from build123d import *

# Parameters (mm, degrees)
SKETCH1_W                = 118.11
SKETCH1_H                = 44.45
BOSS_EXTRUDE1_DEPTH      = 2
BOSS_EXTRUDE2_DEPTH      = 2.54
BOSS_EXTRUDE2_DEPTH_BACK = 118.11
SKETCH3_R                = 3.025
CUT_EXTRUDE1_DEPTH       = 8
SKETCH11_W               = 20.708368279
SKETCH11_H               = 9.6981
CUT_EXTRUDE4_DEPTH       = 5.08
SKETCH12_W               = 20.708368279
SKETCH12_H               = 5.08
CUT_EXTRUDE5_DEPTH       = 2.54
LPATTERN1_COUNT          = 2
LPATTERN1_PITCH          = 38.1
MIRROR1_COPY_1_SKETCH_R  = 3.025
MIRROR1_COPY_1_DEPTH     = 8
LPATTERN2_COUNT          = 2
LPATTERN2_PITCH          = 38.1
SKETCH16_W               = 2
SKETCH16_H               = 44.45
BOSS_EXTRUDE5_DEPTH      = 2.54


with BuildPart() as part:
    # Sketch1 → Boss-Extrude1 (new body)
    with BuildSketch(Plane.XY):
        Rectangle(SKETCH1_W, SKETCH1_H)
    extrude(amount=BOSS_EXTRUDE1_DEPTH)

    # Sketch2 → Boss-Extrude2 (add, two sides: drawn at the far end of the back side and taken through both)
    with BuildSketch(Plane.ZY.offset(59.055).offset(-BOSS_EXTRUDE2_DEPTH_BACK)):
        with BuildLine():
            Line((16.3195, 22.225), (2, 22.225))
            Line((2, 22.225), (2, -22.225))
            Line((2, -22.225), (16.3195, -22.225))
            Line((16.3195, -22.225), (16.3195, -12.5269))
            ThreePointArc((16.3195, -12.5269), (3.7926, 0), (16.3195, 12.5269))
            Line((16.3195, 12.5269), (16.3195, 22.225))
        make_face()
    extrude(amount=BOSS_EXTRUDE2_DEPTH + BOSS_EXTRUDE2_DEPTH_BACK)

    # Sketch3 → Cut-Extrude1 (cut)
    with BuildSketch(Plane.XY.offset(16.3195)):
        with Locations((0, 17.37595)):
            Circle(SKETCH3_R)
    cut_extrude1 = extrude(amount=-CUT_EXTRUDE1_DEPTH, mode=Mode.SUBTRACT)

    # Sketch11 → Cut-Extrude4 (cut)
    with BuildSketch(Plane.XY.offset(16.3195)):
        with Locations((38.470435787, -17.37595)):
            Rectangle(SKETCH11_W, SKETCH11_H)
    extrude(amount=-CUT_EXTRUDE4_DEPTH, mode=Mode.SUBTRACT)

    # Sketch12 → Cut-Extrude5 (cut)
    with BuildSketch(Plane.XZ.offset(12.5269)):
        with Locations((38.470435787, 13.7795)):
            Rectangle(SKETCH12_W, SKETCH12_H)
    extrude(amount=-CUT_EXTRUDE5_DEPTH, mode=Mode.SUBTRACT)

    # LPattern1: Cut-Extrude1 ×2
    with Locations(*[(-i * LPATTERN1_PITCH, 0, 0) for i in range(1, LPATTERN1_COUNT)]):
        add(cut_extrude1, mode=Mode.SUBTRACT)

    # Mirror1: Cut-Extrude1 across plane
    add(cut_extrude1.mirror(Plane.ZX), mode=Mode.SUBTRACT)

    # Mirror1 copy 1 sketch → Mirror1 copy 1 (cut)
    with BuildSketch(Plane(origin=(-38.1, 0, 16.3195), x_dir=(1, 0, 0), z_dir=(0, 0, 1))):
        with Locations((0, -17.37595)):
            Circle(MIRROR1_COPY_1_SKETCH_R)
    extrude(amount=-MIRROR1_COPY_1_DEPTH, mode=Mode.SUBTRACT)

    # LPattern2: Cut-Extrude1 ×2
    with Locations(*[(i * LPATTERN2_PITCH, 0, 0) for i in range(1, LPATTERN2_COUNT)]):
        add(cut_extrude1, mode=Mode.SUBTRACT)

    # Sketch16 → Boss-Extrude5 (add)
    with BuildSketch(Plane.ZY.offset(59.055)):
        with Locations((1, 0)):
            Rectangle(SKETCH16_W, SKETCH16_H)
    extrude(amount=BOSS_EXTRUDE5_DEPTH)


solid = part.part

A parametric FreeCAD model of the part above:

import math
import FreeCAD as App
import Part
import Sketcher

V = App.Vector
Q = App.Units.Quantity

doc = App.newDocument("Part")
body = doc.addObject("PartDesign::Body", "Body")

sketch1 = body.newObject("Sketcher::SketchObject", "Sketch")
sketch1.AttachmentSupport = (doc.getObject("XY_Plane"), [""])
sketch1.MapMode = "FlatFace"
sketch1.addGeometry([
    Part.LineSegment(V(-59, 22, 0), V(-59, -22, 0)),
    Part.LineSegment(V(-59, -22, 0), V(59, -22, 0)),
    Part.LineSegment(V(59, -22, 0), V(59, 22, 0)),
    Part.LineSegment(V(59, 22, 0), V(-59, 22, 0)),
], False)
sketch1.addConstraint([
    Sketcher.Constraint("Coincident", 0, 2, 1, 1),
    Sketcher.Constraint("Coincident", 1, 2, 2, 1),
    Sketcher.Constraint("Coincident", 2, 2, 3, 1),
    Sketcher.Constraint("Coincident", 3, 2, 0, 1),
    Sketcher.Constraint("Vertical", 0),
    Sketcher.Constraint("Horizontal", 1),
    Sketcher.Constraint("Vertical", 2),
    Sketcher.Constraint("Horizontal", 3),
    Sketcher.Constraint("Symmetric", 0, 2, 2, 2, -1, 1),
    Sketcher.Constraint("DistanceX", 1, 1, 1, 2, Q("4.65 in")),
    Sketcher.Constraint("DistanceY", 0, 2, 0, 1, Q("1.75 in")),
])
pad1 = body.newObject("PartDesign::Pad", "Pad")
pad1.Profile = sketch1
pad1.Length = 2

sketch2 = body.newObject("Sketcher::SketchObject", "Sketch001")
sketch2.AttachmentSupport = (doc.getObject("YZ_Plane"), [""])
sketch2.MapMode = "FlatFace"
sketch2.AttachmentOffset = App.Placement(V(0, 0, -2.325 * 25.4), App.Rotation())
sketch2.addGeometry([
    Part.LineSegment(V(22, 16, 0), V(22, 2, 0)),
    Part.LineSegment(V(22, 2, 0), V(-22, 2, 0)),
    Part.LineSegment(V(-22, 2, 0), V(-22, 16, 0)),
    Part.LineSegment(V(-22, 16, 0), V(-13, 16, 0)),
    Part.ArcOfCircle(Part.Circle(V(0, 16, 0), V(0, 0, 1), 13), math.radians(180), math.radians(360)),
    Part.LineSegment(V(13, 16, 0), V(22, 16, 0)),
], False)
sketch2.addConstraint([
    Sketcher.Constraint("Coincident", 0, 2, 1, 1),
    Sketcher.Constraint("Coincident", 1, 2, 2, 1),
    Sketcher.Constraint("Coincident", 2, 2, 3, 1),
    Sketcher.Constraint("Coincident", 3, 2, 4, 1),
    Sketcher.Constraint("Coincident", 4, 2, 5, 1),
    Sketcher.Constraint("Coincident", 5, 2, 0, 1),
    Sketcher.Constraint("Vertical", 0),
    Sketcher.Constraint("Horizontal", 1),
    Sketcher.Constraint("Vertical", 2),
    Sketcher.Constraint("Horizontal", 3),
    Sketcher.Constraint("Horizontal", 5),
    Sketcher.Constraint("Symmetric", 3, 2, 4, 2, -2),
    Sketcher.Constraint("Horizontal", 4, 3, 2, 2),
    Sketcher.Constraint("Equal", 3, 5),
    Sketcher.Constraint("DistanceX", 1, 2, 1, 1, Q("1.75 in")),
    Sketcher.Constraint("Radius", 4, Q("12.5269 mm")),
    Sketcher.Constraint("DistanceY", 0, 2, 0, 1, Q("14.3195 mm")),
    Sketcher.Constraint("DistanceY", -1, 1, 4, 3, Q("0.6425 in")),
])
pad2 = body.newObject("PartDesign::Pad", "Pad001")
pad2.Profile = sketch2
pad2.Type = "TwoLengths"
pad2.Length = Q("0.1 in")
pad2.Length2 = Q("4.65 in")
pad2.Reversed = True

sketch3 = body.newObject("Sketcher::SketchObject", "Sketch002")
sketch3.AttachmentSupport = (doc.getObject("XY_Plane"), [""])
sketch3.MapMode = "FlatFace"
sketch3.AttachmentOffset = App.Placement(V(0, 0, 0.6425 * 25.4), App.Rotation())
sketch3.addGeometry(Part.Circle(V(0, 17.4, 0), V(0, 0, 1), 3), False)
sketch3.addConstraint([
    Sketcher.Constraint("PointOnObject", 0, 3, -2),
    Sketcher.Constraint("Diameter", 0, Q("6.05 mm")),
    Sketcher.Constraint("DistanceY", -1, 1, 0, 3, Q("17.37595 mm")),
])
pocket1 = body.newObject("PartDesign::Pocket", "Pocket")
pocket1.Profile = sketch3
pocket1.Length = 8

sketch4 = body.newObject("Sketcher::SketchObject", "Sketch003")
sketch4.AttachmentSupport = (doc.getObject("XY_Plane"), [""])
sketch4.MapMode = "FlatFace"
sketch4.AttachmentOffset = App.Placement(V(0, 0, 0.6425 * 25.4), App.Rotation())
sketch4.addGeometry([
    Part.LineSegment(V(28, -13, 0), V(28, -22, 0)),
    Part.LineSegment(V(28, -22, 0), V(49, -22, 0)),
    Part.LineSegment(V(49, -22, 0), V(49, -13, 0)),
    Part.LineSegment(V(49, -13, 0), V(28, -13, 0)),
], False)
sketch4.addConstraint([
    Sketcher.Constraint("Coincident", 0, 2, 1, 1),
    Sketcher.Constraint("Coincident", 1, 2, 2, 1),
    Sketcher.Constraint("Coincident", 2, 2, 3, 1),
    Sketcher.Constraint("Coincident", 3, 2, 0, 1),
    Sketcher.Constraint("Vertical", 0),
    Sketcher.Constraint("Horizontal", 1),
    Sketcher.Constraint("Vertical", 2),
    Sketcher.Constraint("Horizontal", 3),
    Sketcher.Constraint("DistanceY", 0, 2, -1, 1, Q("0.875 in")),
    Sketcher.Constraint("DistanceY", 0, 2, 0, 1, Q("9.6981 mm")),
    Sketcher.Constraint("DistanceX", 1, 1, 1, 2, Q("20.708368 mm")),
    Sketcher.Constraint("DistanceX", -1, 1, 0, 2, Q("28.116252 mm")),
])
pocket2 = body.newObject("PartDesign::Pocket", "Pocket001")
pocket2.Profile = sketch4
pocket2.Length = Q("0.2 in")

sketch5 = body.newObject("Sketcher::SketchObject", "Sketch004")
sketch5.AttachmentSupport = (doc.getObject("XZ_Plane"), [""])
sketch5.MapMode = "FlatFace"
sketch5.AttachmentOffset = App.Placement(V(0, 0, 12.5269), App.Rotation())
sketch5.addGeometry([
    Part.LineSegment(V(28, 16, 0), V(28, 11, 0)),
    Part.LineSegment(V(28, 11, 0), V(49, 11, 0)),
    Part.LineSegment(V(49, 11, 0), V(49, 16, 0)),
    Part.LineSegment(V(49, 16, 0), V(28, 16, 0)),
], False)
sketch5.addConstraint([
    Sketcher.Constraint("Coincident", 0, 2, 1, 1),
    Sketcher.Constraint("Coincident", 1, 2, 2, 1),
    Sketcher.Constraint("Coincident", 2, 2, 3, 1),
    Sketcher.Constraint("Coincident", 3, 2, 0, 1),
    Sketcher.Constraint("Vertical", 0),
    Sketcher.Constraint("Horizontal", 1),
    Sketcher.Constraint("Vertical", 2),
    Sketcher.Constraint("Horizontal", 3),
    Sketcher.Constraint("DistanceY", 0, 2, 0, 1, Q("0.2 in")),
    Sketcher.Constraint("DistanceY", -1, 1, 0, 2, Q("0.4425 in")),
    Sketcher.Constraint("DistanceX", 1, 1, 1, 2, Q("20.708368 mm")),
    Sketcher.Constraint("DistanceX", -1, 1, 0, 2, Q("28.116252 mm")),
])
pocket3 = body.newObject("PartDesign::Pocket", "Pocket002")
pocket3.Profile = sketch5
pocket3.Length = Q("0.1 in")
doc.recompute()

linearpattern = body.newObject("PartDesign::LinearPattern", "LinearPattern")
linearpattern.Originals = [pocket1]
linearpattern.Direction = (doc.getObject("X_Axis"), [""])
linearpattern.Mode = "offset"
linearpattern.Offset = Q("1.5 in")
linearpattern.Occurrences = 2
linearpattern.Reversed = True
body.Tip = linearpattern
doc.recompute()

mirrored = body.newObject("PartDesign::Mirrored", "Mirrored")
mirrored.Originals = [pocket1]
mirrored.MirrorPlane = (doc.getObject("XZ_Plane"), [""])
body.Tip = mirrored

sketch6 = body.newObject("Sketcher::SketchObject", "Sketch005")
sketch6.AttachmentSupport = (doc.getObject("XY_Plane"), [""])
sketch6.MapMode = "FlatFace"
sketch6.AttachmentOffset = App.Placement(V(0, 0, 0.6425 * 25.4), App.Rotation())
sketch6.addGeometry(Part.Circle(V(-38.1, -17.4, 0), V(0, 0, 1), 3), False)
sketch6.addConstraint([
    Sketcher.Constraint("DistanceX", 0, 3, -1, 1, Q("1.5 in")),
    Sketcher.Constraint("Diameter", 0, Q("6.05 mm")),
    Sketcher.Constraint("DistanceY", 0, 3, -1, 1, Q("17.37595 mm")),
])
pocket4 = body.newObject("PartDesign::Pocket", "Pocket003")
pocket4.Profile = sketch6
pocket4.Length = 8
doc.recompute()

linearpattern2 = body.newObject("PartDesign::LinearPattern", "LinearPattern001")
linearpattern2.Originals = [pocket1]
linearpattern2.Direction = (doc.getObject("X_Axis"), [""])
linearpattern2.Mode = "offset"
linearpattern2.Offset = Q("1.5 in")
linearpattern2.Occurrences = 2
body.Tip = linearpattern2

sketch7 = body.newObject("Sketcher::SketchObject", "Sketch006")
sketch7.AttachmentSupport = (doc.getObject("YZ_Plane"), [""])
sketch7.MapMode = "FlatFace"
sketch7.AttachmentOffset = App.Placement(V(0, 0, -2.325 * 25.4), App.Rotation())
sketch7.addGeometry([
    Part.LineSegment(V(22.2, 0, 0), V(-22.2, 0, 0)),
    Part.LineSegment(V(-22.2, 0, 0), V(-22.2, 2, 0)),
    Part.LineSegment(V(-22.2, 2, 0), V(22.2, 2, 0)),
    Part.LineSegment(V(22.2, 2, 0), V(22.2, 0, 0)),
], False)
sketch7.addConstraint([
    Sketcher.Constraint("Coincident", 0, 2, 1, 1),
    Sketcher.Constraint("Coincident", 1, 2, 2, 1),
    Sketcher.Constraint("Coincident", 2, 2, 3, 1),
    Sketcher.Constraint("Coincident", 3, 2, 0, 1),
    Sketcher.Constraint("Horizontal", 0),
    Sketcher.Constraint("Vertical", 1),
    Sketcher.Constraint("Horizontal", 2),
    Sketcher.Constraint("Vertical", 3),
    Sketcher.Constraint("Symmetric", 0, 2, 3, 2, -1, 1),
    Sketcher.Constraint("DistanceX", 0, 2, 0, 1, Q("1.75 in")),
    Sketcher.Constraint("DistanceY", 1, 1, 1, 2, Q("2 mm")),
])
pad3 = body.newObject("PartDesign::Pad", "Pad002")
pad3.Profile = sketch7
pad3.Length = Q("0.1 in")
pad3.Reversed = True

doc.recompute()
